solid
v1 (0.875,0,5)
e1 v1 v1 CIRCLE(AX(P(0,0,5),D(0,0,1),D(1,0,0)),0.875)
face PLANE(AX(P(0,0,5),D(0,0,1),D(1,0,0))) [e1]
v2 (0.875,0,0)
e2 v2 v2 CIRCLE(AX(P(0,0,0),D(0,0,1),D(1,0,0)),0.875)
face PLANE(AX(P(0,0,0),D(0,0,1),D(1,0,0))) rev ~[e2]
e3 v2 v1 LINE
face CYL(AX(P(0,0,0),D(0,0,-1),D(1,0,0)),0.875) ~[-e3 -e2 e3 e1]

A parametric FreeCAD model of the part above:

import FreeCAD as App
import Part
import Sketcher
from FreeCAD import Vector

doc = App.newDocument("Part")
params = doc.addObject("Spreadsheet::Sheet", "Params")
for row, (alias, value) in enumerate([
    ("sketch1_diameter", "1.75 mm"),
    ("pad1_length", "5 mm"),
], start=1):
    params.set(f"A{row}", alias)
    params.set(f"B{row}", "=" + value)
    params.setAlias(f"B{row}", alias)

body = doc.addObject("PartDesign::Body", "Body")

# Sketch on XY plane
sketch1 = body.newObject("Sketcher::SketchObject", "Sketch")
sketch1.AttachmentSupport = (doc.getObject("XY_Plane"), [""])
sketch1.MapMode = "FlatFace"
sketch1.addGeometry(Part.Circle(Vector(0, 0, 0), Vector(0, 0, 1), 0.9), False)
sketch1.addConstraint(Sketcher.Constraint("Coincident", 0, 3, -1, 1))
sketch1.addConstraint(Sketcher.Constraint("Diameter", 0, 1.75))
sketch1.setExpression("Constraints[1]", "Params.sketch1_diameter")
pad1 = body.newObject("PartDesign::Pad", "Pad")
pad1.Profile = sketch1
pad1.setExpression("Length", "Params.pad1_length")

doc.recompute()
